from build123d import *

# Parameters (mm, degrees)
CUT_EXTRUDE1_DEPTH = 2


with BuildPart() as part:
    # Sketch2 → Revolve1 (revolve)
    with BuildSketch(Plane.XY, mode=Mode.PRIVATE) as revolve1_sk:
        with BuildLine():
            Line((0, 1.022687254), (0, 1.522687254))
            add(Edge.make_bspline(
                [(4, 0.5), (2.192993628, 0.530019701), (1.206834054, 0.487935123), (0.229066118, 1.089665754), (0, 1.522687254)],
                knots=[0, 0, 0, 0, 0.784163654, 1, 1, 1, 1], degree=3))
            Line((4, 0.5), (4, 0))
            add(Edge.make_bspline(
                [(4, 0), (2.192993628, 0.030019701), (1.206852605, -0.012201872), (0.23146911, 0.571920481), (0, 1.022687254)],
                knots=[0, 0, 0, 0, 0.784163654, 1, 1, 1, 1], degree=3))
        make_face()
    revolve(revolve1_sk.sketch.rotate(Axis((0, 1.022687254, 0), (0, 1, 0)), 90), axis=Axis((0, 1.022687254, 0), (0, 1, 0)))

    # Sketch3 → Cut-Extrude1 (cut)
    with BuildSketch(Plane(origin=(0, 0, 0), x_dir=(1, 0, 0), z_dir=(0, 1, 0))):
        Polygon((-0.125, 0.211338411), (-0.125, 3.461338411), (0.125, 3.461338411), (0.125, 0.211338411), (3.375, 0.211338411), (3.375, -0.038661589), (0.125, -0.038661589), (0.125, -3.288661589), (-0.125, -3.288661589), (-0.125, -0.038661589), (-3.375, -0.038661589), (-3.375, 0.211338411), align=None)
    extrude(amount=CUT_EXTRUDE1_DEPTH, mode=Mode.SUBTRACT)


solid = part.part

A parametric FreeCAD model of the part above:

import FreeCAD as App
import Part
import Sketcher
from FreeCAD import Vector
Q = App.Units.Quantity

doc = App.newDocument("Part")
body = doc.addObject("PartDesign::Body", "Body")

# Sketch on XY plane
sketch1 = body.newObject("Sketcher::SketchObject", "Sketch")
sketch1.AttachmentSupport = (doc.getObject("XY_Plane"), [""])
sketch1.MapMode = "FlatFace"
sketch1.addGeometry(Part.LineSegment(Vector(0, 1.522687, 0), Vector(0, 1.022687, 0)), False)
sketch1.addGeometry(Part.BSplineCurve([Vector(4, 0, 0), Vector(2.192994, 0.03002, 0), Vector(1.206853, -0.012202, 0), Vector(0.231469, 0.57192, 0), Vector(0, 1.022687, 0)], [4, 1, 4], [0, 0.784163654, 1], False, 3, [1, 1, 1, 1, 1], False), False)
sketch1.addGeometry(Part.LineSegment(Vector(4, 0, 0), Vector(4, 0.5, 0)), False)
sketch1.addGeometry(Part.BSplineCurve([Vector(4, 0.5, 0), Vector(2.192994, 0.53002, 0), Vector(1.206834, 0.487935, 0), Vector(0.229066, 1.089666, 0), Vector(0, 1.522687, 0)], [4, 1, 4], [0, 0.784163654, 1], False, 3, [1, 1, 1, 1, 1], False), False)
sketch1.addConstraint(Sketcher.Constraint("Block", 1))
sketch1.addConstraint(Sketcher.Constraint("Block", 3))
sketch1.addConstraint(Sketcher.Constraint("Coincident", 0, 2, 1, 2))
sketch1.addConstraint(Sketcher.Constraint("Coincident", 1, 1, 2, 1))
sketch1.addConstraint(Sketcher.Constraint("Coincident", 2, 2, 3, 1))
sketch1.addConstraint(Sketcher.Constraint("Coincident", 3, 2, 0, 1))
revolution = body.newObject("PartDesign::Revolution", "Revolution")
revolution.Profile = sketch1
revolution.ReferenceAxis = (sketch1, ["V_Axis"])
revolution.Angle = 360

# Sketch on XZ plane
sketch2 = body.newObject("Sketcher::SketchObject", "Sketch001")
sketch2.AttachmentSupport = (doc.getObject("XZ_Plane"), [""])
sketch2.MapMode = "FlatFace"
sketch2.addGeometry(Part.LineSegment(Vector(-0.125, -3.461338, 0), Vector(-0.125, -0.211338, 0)), False)
sketch2.addGeometry(Part.LineSegment(Vector(-0.125, -0.211338, 0), Vector(-3.375, -0.211338, 0)), False)
sketch2.addGeometry(Part.LineSegment(Vector(-3.375, -0.211338, 0), Vector(-3.375, 0.038662, 0)), False)
sketch2.addGeometry(Part.LineSegment(Vector(-3.375, 0.038662, 0), Vector(-0.125, 0.038662, 0)), False)
sketch2.addGeometry(Part.LineSegment(Vector(-0.125, 0.038662, 0), Vector(-0.125, 3.288662, 0)), False)
sketch2.addGeometry(Part.LineSegment(Vector(-0.125, 3.288662, 0), Vector(0.125, 3.288662, 0)), False)
sketch2.addGeometry(Part.LineSegment(Vector(0.125, 3.288662, 0), Vector(0.125, 0.038662, 0)), False)
sketch2.addGeometry(Part.LineSegment(Vector(0.125, 0.038662, 0), Vector(3.375, 0.038662, 0)), False)
sketch2.addGeometry(Part.LineSegment(Vector(3.375, 0.038662, 0), Vector(3.375, -0.211338, 0)), False)
sketch2.addGeometry(Part.LineSegment(Vector(3.375, -0.211338, 0), Vector(0.125, -0.211338, 0)), False)
sketch2.addGeometry(Part.LineSegment(Vector(0.125, -0.211338, 0), Vector(0.125, -3.461338, 0)), False)
sketch2.addGeometry(Part.LineSegment(Vector(0.125, -3.461338, 0), Vector(-0.125, -3.461338, 0)), False)
sketch2.addConstraint(Sketcher.Constraint("Coincident", 0, 2, 1, 1))
sketch2.addConstraint(Sketcher.Constraint("Coincident", 1, 2, 2, 1))
sketch2.addConstraint(Sketcher.Constraint("Coincident", 2, 2, 3, 1))
sketch2.addConstraint(Sketcher.Constraint("Coincident", 3, 2, 4, 1))
sketch2.addConstraint(Sketcher.Constraint("Coincident", 4, 2, 5, 1))
sketch2.addConstraint(Sketcher.Constraint("Coincident", 5, 2, 6, 1))
sketch2.addConstraint(Sketcher.Constraint("Coincident", 6, 2, 7, 1))
sketch2.addConstraint(Sketcher.Constraint("Coincident", 7, 2, 8, 1))
sketch2.addConstraint(Sketcher.Constraint("Coincident", 8, 2, 9, 1))
sketch2.addConstraint(Sketcher.Constraint("Coincident", 9, 2, 10, 1))
sketch2.addConstraint(Sketcher.Constraint("Coincident", 10, 2, 11, 1))
sketch2.addConstraint(Sketcher.Constraint("Coincident", 11, 2, 0, 1))
sketch2.addConstraint(Sketcher.Constraint("Vertical", 0))
sketch2.addConstraint(Sketcher.Constraint("Horizontal", 1))
sketch2.addConstraint(Sketcher.Constraint("Vertical", 2))
sketch2.addConstraint(Sketcher.Constraint("Horizontal", 3))
sketch2.addConstraint(Sketcher.Constraint("Vertical", 4))
sketch2.addConstraint(Sketcher.Constraint("Horizontal", 5))
sketch2.addConstraint(Sketcher.Constraint("Vertical", 6))
sketch2.addConstraint(Sketcher.Constraint("Horizontal", 7))
sketch2.addConstraint(Sketcher.Constraint("Vertical", 8))
sketch2.addConstraint(Sketcher.Constraint("Horizontal", 9))
sketch2.addConstraint(Sketcher.Constraint("Vertical", 10))
sketch2.addConstraint(Sketcher.Constraint("Horizontal", 11))
sketch2.addConstraint(Sketcher.Constraint("Symmetric", 3, 2, 6, 2, -2))
sketch2.addConstraint(Sketcher.Constraint("Symmetric", 1, 2, 8, 2, -2))
sketch2.addConstraint(Sketcher.Constraint("Vertical", 0, 2, 3, 2))
sketch2.addConstraint(Sketcher.Constraint("Vertical", 6, 2, 9, 2))
sketch2.addConstraint(Sketcher.Constraint("Equal", 9, 0))
sketch2.addConstraint(Sketcher.Constraint("Equal", 11, 2))
sketch2.addConstraint(Sketcher.Constraint("Equal", 0, 4))
sketch2.addConstraint(Sketcher.Constraint("DistanceX", 1, 2, 1, 1, Q("3.25 mm")))
sketch2.addConstraint(Sketcher.Constraint("DistanceX", 5, 1, 5, 2, Q("0.25 mm")))
sketch2.addConstraint(Sketcher.Constraint("DistanceY", 0, 2, -1, 1, Q("0.211338 mm")))
pocket1 = body.newObject("PartDesign::Pocket", "Pocket")
pocket1.Profile = sketch2
pocket1.Length = 2

doc.recompute()
